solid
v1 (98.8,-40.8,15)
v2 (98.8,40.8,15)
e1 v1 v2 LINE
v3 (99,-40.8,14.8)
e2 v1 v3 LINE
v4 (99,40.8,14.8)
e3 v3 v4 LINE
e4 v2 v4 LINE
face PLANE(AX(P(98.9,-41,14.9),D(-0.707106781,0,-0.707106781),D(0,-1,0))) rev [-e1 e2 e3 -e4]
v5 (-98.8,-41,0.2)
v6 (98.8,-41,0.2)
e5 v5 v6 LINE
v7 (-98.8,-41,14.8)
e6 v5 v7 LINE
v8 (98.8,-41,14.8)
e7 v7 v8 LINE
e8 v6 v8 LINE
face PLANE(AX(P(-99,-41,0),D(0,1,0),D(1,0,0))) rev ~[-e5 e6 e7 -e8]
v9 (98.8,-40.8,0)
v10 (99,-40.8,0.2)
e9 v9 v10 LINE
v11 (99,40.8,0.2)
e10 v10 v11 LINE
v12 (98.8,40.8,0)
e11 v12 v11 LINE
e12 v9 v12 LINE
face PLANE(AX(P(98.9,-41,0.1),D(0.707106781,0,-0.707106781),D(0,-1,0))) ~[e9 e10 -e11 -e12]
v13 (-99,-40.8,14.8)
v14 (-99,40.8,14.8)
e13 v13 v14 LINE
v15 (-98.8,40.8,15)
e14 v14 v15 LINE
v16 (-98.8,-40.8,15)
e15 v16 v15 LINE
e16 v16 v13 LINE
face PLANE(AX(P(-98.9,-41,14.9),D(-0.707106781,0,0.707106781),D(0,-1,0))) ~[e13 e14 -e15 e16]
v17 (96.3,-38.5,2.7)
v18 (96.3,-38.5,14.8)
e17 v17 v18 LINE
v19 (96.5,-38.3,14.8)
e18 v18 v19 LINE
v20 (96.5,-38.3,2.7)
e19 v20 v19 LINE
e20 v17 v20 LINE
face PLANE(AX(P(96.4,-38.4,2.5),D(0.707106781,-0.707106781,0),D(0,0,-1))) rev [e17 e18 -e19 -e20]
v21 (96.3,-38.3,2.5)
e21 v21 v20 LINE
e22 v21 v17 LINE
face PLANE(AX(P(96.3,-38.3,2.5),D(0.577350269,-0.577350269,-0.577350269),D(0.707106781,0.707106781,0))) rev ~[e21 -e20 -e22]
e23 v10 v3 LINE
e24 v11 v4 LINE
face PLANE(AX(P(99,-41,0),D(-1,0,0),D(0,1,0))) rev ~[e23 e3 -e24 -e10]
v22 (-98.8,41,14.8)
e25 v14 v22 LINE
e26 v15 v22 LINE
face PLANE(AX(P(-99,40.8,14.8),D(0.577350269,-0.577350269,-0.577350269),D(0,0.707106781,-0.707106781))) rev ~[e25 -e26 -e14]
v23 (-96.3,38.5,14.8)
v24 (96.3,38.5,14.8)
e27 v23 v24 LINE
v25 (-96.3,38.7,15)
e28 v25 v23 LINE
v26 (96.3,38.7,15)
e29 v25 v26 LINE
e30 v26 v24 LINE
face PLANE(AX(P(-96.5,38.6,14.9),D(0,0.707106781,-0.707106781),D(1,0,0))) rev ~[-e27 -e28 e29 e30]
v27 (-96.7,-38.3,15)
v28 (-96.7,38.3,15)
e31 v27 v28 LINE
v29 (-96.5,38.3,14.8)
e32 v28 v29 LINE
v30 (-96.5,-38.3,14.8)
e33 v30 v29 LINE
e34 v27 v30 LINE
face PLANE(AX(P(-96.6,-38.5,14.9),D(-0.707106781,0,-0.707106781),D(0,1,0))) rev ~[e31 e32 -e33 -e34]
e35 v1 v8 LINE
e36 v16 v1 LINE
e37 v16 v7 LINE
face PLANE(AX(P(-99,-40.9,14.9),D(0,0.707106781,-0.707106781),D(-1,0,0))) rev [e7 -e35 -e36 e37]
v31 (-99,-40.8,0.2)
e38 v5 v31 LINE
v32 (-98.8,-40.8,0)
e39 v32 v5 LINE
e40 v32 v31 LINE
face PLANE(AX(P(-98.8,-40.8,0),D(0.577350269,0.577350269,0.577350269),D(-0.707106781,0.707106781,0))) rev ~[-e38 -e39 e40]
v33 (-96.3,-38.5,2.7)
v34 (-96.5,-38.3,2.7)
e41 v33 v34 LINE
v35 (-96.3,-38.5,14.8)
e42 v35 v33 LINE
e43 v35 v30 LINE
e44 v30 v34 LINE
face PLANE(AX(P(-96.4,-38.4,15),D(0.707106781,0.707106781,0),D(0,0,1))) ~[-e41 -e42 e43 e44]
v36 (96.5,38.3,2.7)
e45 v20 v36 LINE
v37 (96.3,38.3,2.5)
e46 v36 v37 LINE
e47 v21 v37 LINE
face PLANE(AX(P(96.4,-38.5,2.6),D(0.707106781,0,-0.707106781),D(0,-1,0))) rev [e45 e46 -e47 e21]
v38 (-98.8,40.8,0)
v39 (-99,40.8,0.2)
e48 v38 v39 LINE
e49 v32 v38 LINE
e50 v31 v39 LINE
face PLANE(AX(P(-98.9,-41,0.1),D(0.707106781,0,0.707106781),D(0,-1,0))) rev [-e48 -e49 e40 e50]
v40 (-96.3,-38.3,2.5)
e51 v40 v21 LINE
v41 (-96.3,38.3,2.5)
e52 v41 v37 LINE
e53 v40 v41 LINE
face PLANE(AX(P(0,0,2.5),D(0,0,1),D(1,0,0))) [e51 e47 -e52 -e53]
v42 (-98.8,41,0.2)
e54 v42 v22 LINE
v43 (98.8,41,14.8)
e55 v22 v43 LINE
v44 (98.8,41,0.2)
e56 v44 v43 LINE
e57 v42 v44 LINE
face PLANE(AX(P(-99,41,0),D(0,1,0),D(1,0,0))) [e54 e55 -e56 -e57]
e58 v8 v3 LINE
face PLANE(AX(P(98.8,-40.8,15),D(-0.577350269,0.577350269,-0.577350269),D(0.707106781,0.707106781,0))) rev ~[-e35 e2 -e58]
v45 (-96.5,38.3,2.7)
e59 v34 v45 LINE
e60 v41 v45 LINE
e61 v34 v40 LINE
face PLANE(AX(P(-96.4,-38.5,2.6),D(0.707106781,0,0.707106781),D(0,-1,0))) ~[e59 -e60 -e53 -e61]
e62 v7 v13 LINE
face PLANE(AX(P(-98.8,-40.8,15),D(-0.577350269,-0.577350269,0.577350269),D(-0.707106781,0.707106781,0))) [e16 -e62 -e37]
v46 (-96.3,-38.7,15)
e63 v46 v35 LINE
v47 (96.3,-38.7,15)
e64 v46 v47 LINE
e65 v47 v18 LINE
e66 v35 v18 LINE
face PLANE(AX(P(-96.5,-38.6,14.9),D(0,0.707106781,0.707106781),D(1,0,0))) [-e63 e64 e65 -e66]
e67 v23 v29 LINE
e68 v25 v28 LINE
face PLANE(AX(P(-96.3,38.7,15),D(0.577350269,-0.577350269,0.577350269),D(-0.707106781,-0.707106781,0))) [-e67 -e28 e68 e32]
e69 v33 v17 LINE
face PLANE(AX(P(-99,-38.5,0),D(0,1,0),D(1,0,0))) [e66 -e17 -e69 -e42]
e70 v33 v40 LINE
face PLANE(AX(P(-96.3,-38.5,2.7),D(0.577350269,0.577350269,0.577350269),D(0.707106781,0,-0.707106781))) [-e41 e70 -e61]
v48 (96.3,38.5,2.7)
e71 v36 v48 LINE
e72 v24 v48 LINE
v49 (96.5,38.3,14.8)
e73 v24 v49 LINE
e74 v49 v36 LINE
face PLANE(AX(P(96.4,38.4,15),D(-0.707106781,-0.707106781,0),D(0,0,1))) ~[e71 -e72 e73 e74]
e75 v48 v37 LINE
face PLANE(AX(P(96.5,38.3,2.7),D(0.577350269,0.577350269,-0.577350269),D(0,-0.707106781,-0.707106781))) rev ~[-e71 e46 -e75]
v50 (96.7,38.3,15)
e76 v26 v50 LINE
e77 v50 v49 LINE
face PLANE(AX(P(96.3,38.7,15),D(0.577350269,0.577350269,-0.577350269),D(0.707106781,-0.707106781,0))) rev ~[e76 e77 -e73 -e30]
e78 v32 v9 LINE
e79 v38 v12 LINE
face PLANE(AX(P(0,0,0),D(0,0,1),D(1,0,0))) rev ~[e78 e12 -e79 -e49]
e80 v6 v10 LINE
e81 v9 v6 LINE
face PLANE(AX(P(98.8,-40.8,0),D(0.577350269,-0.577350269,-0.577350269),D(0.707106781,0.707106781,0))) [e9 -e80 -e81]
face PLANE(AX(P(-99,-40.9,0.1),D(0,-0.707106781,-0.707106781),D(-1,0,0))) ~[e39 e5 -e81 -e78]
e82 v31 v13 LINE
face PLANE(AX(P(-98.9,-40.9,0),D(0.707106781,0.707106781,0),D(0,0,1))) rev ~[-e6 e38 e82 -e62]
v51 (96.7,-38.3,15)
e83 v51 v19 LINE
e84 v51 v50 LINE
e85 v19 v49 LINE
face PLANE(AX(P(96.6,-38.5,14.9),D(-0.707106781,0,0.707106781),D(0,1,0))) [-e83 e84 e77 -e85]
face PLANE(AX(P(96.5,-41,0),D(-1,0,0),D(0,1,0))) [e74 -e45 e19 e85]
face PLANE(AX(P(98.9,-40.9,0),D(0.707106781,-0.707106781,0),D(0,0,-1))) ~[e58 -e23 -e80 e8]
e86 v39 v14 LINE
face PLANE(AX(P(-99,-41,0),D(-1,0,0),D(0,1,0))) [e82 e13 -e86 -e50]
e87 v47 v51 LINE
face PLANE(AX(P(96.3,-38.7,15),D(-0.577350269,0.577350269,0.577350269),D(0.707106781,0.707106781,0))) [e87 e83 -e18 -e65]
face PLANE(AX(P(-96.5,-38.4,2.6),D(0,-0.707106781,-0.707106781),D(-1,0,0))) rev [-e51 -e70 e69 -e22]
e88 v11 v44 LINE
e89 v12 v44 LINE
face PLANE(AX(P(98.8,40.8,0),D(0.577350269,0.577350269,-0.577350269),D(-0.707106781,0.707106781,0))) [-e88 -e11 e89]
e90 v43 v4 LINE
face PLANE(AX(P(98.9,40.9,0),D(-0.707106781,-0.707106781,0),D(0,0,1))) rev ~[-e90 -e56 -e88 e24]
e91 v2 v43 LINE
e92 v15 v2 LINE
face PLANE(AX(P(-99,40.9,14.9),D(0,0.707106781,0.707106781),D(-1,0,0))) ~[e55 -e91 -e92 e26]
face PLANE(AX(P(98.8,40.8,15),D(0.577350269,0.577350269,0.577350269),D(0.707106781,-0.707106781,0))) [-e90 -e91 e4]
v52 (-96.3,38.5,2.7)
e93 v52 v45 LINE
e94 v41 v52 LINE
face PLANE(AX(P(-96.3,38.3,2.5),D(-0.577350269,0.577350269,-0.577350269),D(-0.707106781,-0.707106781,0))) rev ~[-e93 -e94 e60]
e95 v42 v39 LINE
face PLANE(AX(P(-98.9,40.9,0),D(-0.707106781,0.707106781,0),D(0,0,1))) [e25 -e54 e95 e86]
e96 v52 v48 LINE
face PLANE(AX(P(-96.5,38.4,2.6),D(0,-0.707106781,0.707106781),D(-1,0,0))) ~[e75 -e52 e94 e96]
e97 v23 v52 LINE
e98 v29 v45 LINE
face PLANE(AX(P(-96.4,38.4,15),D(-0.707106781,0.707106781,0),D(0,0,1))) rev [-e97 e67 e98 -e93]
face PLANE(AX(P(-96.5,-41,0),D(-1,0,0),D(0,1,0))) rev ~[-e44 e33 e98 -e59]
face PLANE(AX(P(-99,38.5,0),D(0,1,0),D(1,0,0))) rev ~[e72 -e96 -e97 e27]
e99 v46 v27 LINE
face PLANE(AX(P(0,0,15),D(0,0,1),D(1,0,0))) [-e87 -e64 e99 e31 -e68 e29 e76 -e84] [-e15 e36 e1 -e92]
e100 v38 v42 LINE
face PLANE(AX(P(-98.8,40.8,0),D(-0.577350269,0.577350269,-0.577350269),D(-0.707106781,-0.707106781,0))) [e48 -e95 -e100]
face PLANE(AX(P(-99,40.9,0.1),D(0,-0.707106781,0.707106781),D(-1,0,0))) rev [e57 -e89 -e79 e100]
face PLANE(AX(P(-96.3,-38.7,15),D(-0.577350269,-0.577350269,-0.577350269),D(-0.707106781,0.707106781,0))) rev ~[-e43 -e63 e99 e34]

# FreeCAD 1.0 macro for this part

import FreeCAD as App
import Part
import Sketcher

V = App.Vector
Q = App.Units.Quantity


def faces_at(feature, points):
    """Names of the faces that lie closest to the given points."""
    faces = feature.Shape.Faces
    near = lambda p: min(range(len(faces)), key=lambda i: faces[i].distToShape(Part.Vertex(*p))[0])
    return sorted({f"Face{near(p) + 1}" for p in points})


def add_polygon(sketch, points):
    """Adds a closed chain of lines whose ends are joined by coincident constraints."""
    first, n = sketch.GeometryCount, len(points)
    for a, b in zip(points, points[1:] + points[:1]):
        sketch.addGeometry(Part.LineSegment(App.Vector(*a, 0), App.Vector(*b, 0)), False)
    for i in range(n):
        sketch.addConstraint(Sketcher.Constraint("Coincident", first + i, 2, first + (i + 1) % n, 1))

doc = App.newDocument("Part")
body = doc.addObject("PartDesign::Body", "Body")

sketch1 = doc.addObject("Sketcher::SketchObject", "Sketch")
body.addObject(sketch1)
sketch1.AttachmentSupport = (doc.XY_Plane, [""])
sketch1.MapMode = "FlatFace"
add_polygon(sketch1, [(-99, 41), (-99, -41), (99, -41), (99, 41)])
sketch1.addConstraint([
    Sketcher.Constraint("Vertical", 0),
    Sketcher.Constraint("Horizontal", 1),
    Sketcher.Constraint("Vertical", 2),
    Sketcher.Constraint("Horizontal", 3),
    Sketcher.Constraint("Symmetric", 0, 2, 2, 2, -1, 1),
    Sketcher.Constraint("DistanceX", 1, 1, 1, 2, Q("198 mm")),
    Sketcher.Constraint("DistanceY", 0, 2, 0, 1, Q("82 mm")),
])
pad1 = doc.addObject("PartDesign::Pad", "Pad")
body.addObject(pad1)
pad1.Profile = sketch1
pad1.Length = 15
doc.recompute()

thickness = doc.addObject("PartDesign::Thickness", "Thickness")
body.addObject(thickness)
thickness.Base = (pad1, faces_at(pad1, [(0, 0, 15)]))
thickness.Value = 2.5
thickness.Reversed = True
thickness.Join = "Arc"
doc.recompute()

chamfer = doc.addObject("PartDesign::Chamfer", "Chamfer")
body.addObject(chamfer)
chamfer.Base = (thickness, ["Edge1"])
chamfer.UseAllEdges = True
chamfer.Size = 0.2

doc.recompute()
